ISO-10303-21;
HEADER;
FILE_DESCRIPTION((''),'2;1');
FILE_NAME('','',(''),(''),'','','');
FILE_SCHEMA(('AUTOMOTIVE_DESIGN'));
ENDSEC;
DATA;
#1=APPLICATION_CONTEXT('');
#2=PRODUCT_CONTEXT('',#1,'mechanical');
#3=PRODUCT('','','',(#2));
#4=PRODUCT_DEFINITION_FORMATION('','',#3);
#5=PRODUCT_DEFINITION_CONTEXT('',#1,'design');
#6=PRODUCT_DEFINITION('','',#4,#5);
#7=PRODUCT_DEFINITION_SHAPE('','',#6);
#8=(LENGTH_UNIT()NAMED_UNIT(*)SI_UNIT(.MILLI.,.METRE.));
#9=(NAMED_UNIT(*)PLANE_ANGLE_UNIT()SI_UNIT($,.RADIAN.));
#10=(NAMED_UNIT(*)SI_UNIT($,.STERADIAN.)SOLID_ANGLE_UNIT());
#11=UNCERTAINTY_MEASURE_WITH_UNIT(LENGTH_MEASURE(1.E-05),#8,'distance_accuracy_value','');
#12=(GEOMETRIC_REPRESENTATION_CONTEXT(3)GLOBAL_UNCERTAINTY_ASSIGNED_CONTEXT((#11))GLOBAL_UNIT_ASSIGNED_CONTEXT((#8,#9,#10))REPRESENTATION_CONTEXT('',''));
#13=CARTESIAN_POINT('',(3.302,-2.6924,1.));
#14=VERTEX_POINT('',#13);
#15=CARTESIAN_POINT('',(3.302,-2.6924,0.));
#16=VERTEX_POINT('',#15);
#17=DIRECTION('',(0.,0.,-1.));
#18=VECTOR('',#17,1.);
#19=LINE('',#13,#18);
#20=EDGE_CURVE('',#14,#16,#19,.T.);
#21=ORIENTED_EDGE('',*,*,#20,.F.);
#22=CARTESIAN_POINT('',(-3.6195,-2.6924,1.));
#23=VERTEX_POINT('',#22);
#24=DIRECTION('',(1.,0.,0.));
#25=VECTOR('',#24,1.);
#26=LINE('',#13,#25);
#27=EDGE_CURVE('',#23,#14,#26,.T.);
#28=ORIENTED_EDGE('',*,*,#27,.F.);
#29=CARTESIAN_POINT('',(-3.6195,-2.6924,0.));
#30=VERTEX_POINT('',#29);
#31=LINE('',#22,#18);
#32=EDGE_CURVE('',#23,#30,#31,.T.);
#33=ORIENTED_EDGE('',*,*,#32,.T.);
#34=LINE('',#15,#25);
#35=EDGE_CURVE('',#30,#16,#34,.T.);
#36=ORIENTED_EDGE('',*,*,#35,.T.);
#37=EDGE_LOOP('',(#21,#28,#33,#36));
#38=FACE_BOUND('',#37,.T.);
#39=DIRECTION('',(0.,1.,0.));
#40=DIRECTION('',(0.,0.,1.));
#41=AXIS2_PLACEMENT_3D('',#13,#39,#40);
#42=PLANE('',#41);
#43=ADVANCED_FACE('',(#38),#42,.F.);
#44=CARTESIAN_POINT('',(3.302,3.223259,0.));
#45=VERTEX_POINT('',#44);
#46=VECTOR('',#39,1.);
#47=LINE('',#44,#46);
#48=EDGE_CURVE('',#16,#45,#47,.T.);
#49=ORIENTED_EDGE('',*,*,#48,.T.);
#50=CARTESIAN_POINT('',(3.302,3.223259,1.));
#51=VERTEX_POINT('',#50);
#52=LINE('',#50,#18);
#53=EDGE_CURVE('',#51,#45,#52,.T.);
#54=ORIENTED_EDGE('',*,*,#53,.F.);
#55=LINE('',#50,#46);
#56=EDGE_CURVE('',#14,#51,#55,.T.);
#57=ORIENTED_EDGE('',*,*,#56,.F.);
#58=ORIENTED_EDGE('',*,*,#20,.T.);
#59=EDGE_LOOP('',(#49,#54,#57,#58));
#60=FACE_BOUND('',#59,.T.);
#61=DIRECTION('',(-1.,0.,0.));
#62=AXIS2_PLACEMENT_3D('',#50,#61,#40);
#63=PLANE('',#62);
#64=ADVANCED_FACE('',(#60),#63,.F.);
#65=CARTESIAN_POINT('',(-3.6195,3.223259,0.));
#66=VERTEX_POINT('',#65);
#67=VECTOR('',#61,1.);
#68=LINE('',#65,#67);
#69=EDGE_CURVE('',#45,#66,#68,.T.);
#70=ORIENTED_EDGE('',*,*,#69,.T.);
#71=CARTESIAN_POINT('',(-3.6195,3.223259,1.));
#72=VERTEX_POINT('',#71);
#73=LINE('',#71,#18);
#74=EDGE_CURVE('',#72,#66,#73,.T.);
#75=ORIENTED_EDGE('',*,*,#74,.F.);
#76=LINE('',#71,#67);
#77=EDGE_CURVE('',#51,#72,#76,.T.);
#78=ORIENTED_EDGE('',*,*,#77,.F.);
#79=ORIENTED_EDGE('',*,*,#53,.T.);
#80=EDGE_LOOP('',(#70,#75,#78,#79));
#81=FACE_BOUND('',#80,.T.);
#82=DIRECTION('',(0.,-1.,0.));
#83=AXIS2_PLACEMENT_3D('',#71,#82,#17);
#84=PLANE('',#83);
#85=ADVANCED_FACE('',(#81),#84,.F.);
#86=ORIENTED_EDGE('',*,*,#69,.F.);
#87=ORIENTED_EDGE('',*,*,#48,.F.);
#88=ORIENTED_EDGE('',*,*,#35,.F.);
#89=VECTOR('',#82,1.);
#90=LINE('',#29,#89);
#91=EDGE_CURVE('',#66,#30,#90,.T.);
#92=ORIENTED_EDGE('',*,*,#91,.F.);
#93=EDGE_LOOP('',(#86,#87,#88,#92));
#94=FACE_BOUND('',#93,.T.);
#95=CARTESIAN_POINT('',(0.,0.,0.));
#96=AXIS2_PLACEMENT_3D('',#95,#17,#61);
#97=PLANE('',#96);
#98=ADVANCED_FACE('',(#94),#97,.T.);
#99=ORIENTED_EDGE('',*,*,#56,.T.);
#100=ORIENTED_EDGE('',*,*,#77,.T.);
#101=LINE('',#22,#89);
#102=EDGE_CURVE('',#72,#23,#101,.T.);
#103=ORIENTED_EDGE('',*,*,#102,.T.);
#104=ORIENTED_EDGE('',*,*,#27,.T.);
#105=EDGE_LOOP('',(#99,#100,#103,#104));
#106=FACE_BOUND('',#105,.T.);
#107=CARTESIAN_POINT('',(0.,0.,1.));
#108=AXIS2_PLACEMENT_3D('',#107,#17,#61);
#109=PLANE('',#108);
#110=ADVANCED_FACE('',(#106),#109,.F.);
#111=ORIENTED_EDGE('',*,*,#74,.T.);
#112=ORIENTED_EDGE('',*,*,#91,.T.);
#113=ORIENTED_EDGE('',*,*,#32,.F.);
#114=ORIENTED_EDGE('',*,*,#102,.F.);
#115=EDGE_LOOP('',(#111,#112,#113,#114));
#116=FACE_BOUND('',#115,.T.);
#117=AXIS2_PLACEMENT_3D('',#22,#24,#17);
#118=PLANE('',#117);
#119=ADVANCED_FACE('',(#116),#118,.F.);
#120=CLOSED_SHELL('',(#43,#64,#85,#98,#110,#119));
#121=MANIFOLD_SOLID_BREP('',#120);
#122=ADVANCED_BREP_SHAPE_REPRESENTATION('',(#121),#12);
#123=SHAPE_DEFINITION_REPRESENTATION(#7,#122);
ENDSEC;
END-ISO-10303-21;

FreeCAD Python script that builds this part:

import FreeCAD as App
import Part
import Sketcher

V = App.Vector
Q = App.Units.Quantity


def add_polygon(sketch, points):
    """Adds a closed chain of lines whose ends are joined by coincident constraints."""
    first, n = sketch.GeometryCount, len(points)
    for a, b in zip(points, points[1:] + points[:1]):
        sketch.addGeometry(Part.LineSegment(App.Vector(*a, 0), App.Vector(*b, 0)), False)
    for i in range(n):
        sketch.addConstraint(Sketcher.Constraint("Coincident", first + i, 2, first + (i + 1) % n, 1))

doc = App.newDocument("Part")
body = doc.addObject("PartDesign::Body", "Body")

# Sketch on XY plane
sketch1 = body.newObject("Sketcher::SketchObject", "Sketch")
sketch1.AttachmentSupport = (doc.getObject("XY_Plane"), [""])
sketch1.MapMode = "FlatFace"
add_polygon(sketch1, [(-3.6195, 3.223259), (-3.6195, -2.6924), (3.302, -2.6924), (3.302, 3.223259)])  # lines 0-3
sketch1.addConstraint([
    Sketcher.Constraint("Vertical", 0),
    Sketcher.Constraint("Horizontal", 1),
    Sketcher.Constraint("Vertical", 2),
    Sketcher.Constraint("Horizontal", 3),
    Sketcher.Constraint("DistanceX", 1, 1, 1, 2, Q("6.9215 mm")),
    Sketcher.Constraint("DistanceX", -1, 1, 1, 2, Q("3.302 mm")),
    Sketcher.Constraint("DistanceY", 0, 2, 0, 1, Q("5.915659 mm")),
    Sketcher.Constraint("DistanceY", 0, 2, -1, 1, Q("2.6924 mm")),
])
pad1 = body.newObject("PartDesign::Pad", "Pad")
pad1.Profile = sketch1
pad1.Length = 1

doc.recompute()
